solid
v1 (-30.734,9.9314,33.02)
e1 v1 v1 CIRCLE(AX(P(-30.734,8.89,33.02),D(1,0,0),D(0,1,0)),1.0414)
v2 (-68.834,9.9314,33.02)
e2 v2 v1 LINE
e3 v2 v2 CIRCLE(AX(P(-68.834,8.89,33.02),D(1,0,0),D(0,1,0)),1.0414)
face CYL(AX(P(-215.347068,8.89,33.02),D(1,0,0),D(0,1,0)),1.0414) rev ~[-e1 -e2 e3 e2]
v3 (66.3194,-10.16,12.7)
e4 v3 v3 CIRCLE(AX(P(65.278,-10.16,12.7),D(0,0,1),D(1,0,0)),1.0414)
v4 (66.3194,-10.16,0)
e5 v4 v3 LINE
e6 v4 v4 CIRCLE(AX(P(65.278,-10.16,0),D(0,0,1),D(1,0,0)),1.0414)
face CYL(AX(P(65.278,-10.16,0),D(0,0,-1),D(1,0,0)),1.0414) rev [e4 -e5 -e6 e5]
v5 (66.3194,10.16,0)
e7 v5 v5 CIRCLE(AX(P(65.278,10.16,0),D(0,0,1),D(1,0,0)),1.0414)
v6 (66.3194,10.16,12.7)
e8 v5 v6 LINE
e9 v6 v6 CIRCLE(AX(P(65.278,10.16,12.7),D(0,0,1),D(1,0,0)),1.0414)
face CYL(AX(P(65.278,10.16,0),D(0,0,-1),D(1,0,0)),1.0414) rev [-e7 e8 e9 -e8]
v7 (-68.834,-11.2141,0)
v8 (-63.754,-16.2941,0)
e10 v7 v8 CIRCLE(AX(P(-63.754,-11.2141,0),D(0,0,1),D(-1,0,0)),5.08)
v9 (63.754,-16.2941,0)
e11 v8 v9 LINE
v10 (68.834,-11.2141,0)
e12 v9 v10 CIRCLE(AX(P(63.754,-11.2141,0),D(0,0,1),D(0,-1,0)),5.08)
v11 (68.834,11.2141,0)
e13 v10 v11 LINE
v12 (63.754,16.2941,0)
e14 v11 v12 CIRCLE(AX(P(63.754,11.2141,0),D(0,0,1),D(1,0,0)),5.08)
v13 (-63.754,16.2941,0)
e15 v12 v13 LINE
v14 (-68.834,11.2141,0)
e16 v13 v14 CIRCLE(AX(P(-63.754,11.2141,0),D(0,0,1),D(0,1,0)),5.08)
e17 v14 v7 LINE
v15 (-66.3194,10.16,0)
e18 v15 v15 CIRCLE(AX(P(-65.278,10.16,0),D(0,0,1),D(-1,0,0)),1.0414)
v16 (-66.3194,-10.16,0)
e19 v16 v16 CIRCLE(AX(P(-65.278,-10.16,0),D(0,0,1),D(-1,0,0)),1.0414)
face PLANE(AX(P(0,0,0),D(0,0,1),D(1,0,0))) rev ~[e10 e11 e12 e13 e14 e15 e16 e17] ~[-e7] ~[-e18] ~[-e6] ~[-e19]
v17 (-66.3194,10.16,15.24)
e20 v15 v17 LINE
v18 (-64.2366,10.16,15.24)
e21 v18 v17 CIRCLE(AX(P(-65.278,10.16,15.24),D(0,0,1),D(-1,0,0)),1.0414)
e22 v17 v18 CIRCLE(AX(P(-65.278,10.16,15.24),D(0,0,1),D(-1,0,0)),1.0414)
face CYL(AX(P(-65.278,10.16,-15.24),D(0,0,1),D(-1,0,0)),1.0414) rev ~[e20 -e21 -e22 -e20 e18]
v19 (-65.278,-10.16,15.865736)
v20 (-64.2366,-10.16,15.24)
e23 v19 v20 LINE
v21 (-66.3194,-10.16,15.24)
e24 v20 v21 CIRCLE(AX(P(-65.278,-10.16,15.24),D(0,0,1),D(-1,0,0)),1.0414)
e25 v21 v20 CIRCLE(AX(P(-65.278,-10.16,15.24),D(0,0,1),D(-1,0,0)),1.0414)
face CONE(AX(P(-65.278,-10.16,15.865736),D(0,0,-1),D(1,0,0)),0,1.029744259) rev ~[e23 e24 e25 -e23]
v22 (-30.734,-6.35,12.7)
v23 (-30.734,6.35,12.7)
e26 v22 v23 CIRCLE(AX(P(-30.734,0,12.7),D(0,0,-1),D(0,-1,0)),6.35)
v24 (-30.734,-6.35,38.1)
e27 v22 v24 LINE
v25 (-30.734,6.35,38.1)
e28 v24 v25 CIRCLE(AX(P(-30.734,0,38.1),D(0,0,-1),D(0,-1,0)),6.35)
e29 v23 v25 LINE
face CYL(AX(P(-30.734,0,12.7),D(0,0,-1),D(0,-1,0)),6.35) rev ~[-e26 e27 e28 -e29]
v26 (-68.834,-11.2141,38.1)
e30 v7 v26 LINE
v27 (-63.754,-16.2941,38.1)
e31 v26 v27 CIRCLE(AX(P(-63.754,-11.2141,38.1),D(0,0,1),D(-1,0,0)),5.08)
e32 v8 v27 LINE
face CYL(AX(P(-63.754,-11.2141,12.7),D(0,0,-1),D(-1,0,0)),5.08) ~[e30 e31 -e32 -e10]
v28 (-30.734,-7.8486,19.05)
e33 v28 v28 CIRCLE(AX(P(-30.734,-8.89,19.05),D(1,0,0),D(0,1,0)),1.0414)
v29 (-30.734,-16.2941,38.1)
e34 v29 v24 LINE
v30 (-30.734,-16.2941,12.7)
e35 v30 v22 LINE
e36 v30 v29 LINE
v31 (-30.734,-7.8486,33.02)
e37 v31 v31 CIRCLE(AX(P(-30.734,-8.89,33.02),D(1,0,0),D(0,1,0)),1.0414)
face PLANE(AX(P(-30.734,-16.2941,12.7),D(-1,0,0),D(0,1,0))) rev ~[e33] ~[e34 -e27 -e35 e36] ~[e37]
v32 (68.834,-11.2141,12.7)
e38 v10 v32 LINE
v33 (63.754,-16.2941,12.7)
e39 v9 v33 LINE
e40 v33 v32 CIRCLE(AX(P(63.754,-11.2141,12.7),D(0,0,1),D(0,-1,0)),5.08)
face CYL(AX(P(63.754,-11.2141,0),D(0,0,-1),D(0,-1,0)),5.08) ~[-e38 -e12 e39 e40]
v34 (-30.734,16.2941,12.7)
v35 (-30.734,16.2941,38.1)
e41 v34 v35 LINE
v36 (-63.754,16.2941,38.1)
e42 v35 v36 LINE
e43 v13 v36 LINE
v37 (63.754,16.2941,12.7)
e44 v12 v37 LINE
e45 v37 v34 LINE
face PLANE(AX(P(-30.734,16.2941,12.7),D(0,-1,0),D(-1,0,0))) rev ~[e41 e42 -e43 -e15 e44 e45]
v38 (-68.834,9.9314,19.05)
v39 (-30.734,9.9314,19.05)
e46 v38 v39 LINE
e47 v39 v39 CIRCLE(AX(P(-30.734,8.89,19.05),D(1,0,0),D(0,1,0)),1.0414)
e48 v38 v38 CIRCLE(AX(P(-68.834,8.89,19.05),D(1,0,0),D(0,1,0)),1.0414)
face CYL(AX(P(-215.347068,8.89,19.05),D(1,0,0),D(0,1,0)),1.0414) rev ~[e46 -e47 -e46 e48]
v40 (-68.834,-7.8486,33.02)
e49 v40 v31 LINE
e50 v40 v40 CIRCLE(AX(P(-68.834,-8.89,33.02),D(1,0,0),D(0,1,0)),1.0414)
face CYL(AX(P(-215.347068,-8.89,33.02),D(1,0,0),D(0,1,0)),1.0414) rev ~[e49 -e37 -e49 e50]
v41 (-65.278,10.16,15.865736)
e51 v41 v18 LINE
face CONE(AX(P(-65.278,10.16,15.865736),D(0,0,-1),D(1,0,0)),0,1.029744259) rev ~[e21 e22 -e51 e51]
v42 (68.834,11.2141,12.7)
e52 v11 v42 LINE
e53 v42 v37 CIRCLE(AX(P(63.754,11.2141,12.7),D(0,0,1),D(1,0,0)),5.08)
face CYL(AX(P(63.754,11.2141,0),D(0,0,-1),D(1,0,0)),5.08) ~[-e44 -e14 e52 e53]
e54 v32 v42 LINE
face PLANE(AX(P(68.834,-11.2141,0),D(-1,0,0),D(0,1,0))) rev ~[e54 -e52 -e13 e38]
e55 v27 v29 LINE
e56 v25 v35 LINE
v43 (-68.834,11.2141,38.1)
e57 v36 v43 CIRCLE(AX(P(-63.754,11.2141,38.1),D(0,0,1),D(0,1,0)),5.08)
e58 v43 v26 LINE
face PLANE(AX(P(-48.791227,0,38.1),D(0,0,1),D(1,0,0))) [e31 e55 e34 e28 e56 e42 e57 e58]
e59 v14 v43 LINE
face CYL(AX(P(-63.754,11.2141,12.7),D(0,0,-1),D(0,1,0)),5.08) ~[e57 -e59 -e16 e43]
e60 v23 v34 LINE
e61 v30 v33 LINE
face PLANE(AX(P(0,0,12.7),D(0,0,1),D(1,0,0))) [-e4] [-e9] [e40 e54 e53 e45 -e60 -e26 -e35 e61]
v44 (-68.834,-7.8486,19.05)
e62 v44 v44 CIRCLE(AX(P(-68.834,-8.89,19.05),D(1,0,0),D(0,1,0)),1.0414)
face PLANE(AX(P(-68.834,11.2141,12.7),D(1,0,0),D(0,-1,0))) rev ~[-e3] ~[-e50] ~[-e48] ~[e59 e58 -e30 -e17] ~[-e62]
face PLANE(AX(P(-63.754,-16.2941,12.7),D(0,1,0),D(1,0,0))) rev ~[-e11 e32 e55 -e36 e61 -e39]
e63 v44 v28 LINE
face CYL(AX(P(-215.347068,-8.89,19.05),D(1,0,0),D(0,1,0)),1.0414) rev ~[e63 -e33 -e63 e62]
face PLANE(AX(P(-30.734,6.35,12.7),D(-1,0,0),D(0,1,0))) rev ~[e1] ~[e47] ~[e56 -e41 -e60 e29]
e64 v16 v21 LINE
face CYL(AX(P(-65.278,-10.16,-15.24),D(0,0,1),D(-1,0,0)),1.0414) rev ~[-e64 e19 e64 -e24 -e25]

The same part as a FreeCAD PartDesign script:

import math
import FreeCAD as App
import Part
import Sketcher
Q = App.Units.Quantity

doc = App.newDocument("Part")
body = doc.addObject("PartDesign::Body", "Body")

# Sketch on XY plane
sketch1 = body.newObject("Sketcher::SketchObject", "Sketch")
sketch1.AttachmentSupport = (doc.getObject("XY_Plane"), [""])
sketch1.MapMode = "FlatFace"
sketch1.addGeometry(Part.ArcOfCircle(Part.Circle(App.Vector(-63.8, -11.2, 0), App.Vector(0, 0, 1), 5.1), math.radians(180), math.radians(270)), False)
sketch1.addGeometry(Part.LineSegment(App.Vector(-63.8, -16.3, 0), App.Vector(63.8, -16.3, 0)), False)
sketch1.addGeometry(Part.ArcOfCircle(Part.Circle(App.Vector(63.8, -11.2, 0), App.Vector(0, 0, 1), 5.1), math.radians(-90), math.radians(0)), False)
sketch1.addGeometry(Part.LineSegment(App.Vector(68.8, -11.2, 0), App.Vector(68.8, 11.2, 0)), False)
sketch1.addGeometry(Part.ArcOfCircle(Part.Circle(App.Vector(63.8, 11.2, 0), App.Vector(0, 0, 1), 5.1), math.radians(0), math.radians(90)), False)
sketch1.addGeometry(Part.LineSegment(App.Vector(63.8, 16.3, 0), App.Vector(-63.8, 16.3, 0)), False)
sketch1.addGeometry(Part.ArcOfCircle(Part.Circle(App.Vector(-63.8, 11.2, 0), App.Vector(0, 0, 1), 5.1), math.radians(90), math.radians(180)), False)
sketch1.addGeometry(Part.LineSegment(App.Vector(-68.8, 11.2, 0), App.Vector(-68.8, -11.2, 0)), False)
sketch1.addGeometry(Part.Circle(App.Vector(65.3, -10.2, 0), App.Vector(0, 0, 1), 1), False)
sketch1.addGeometry(Part.Circle(App.Vector(65.3, 10.2, 0), App.Vector(0, 0, 1), 1), False)
sketch1.addConstraint(Sketcher.Constraint("Tangent", 0, 2, 1, 1))
sketch1.addConstraint(Sketcher.Constraint("Tangent", 1, 2, 2, 1))
sketch1.addConstraint(Sketcher.Constraint("Tangent", 2, 2, 3, 1))
sketch1.addConstraint(Sketcher.Constraint("Tangent", 3, 2, 4, 1))
sketch1.addConstraint(Sketcher.Constraint("Tangent", 4, 2, 5, 1))
sketch1.addConstraint(Sketcher.Constraint("Tangent", 5, 2, 6, 1))
sketch1.addConstraint(Sketcher.Constraint("Tangent", 6, 2, 7, 1))
sketch1.addConstraint(Sketcher.Constraint("Tangent", 7, 2, 0, 1))
sketch1.addConstraint(Sketcher.Constraint("Horizontal", 1))
sketch1.addConstraint(Sketcher.Constraint("Vertical", 3))
sketch1.addConstraint(Sketcher.Constraint("Horizontal", 5))
sketch1.addConstraint(Sketcher.Constraint("Vertical", 7))
sketch1.addConstraint(Sketcher.Constraint("Equal", 0, 2))
sketch1.addConstraint(Sketcher.Constraint("Equal", 2, 4))
sketch1.addConstraint(Sketcher.Constraint("Equal", 4, 6))
sketch1.addConstraint(Sketcher.Constraint("Equal", 8, 9))
sketch1.addConstraint(Sketcher.Constraint("Symmetric", 0, 3, 4, 3, -1, 1))
sketch1.addConstraint(Sketcher.Constraint("Symmetric", 8, 3, 9, 3, -1))
sketch1.addConstraint(Sketcher.Constraint("Radius", 0, Q("0.2 in")))
sketch1.addConstraint(Sketcher.Constraint("Diameter", 8, Q("0.082 in")))
sketch1.addConstraint(Sketcher.Constraint("DistanceX", 1, 1, 1, 2, Q("5.02 in")))
sketch1.addConstraint(Sketcher.Constraint("DistanceY", 8, 3, -1, 1, Q("0.4 in")))
sketch1.addConstraint(Sketcher.Constraint("DistanceY", 3, 1, 3, 2, Q("0.883 in")))
sketch1.addConstraint(Sketcher.Constraint("DistanceX", -1, 1, 8, 3, Q("2.57 in")))
pad1 = body.newObject("PartDesign::Pad", "Pad")
pad1.Profile = sketch1
pad1.Length = Q("0.5 in")

# Sketch on XY plane
sketch2 = body.newObject("Sketcher::SketchObject", "Sketch001")
sketch2.AttachmentSupport = (doc.getObject("XY_Plane"), [""])
sketch2.MapMode = "FlatFace"
sketch2.AttachmentOffset = App.Placement(App.Vector(0, 0, 0.5 * 25.4), App.Rotation())
sketch2.addGeometry(Part.LineSegment(App.Vector(-31, 16, 0), App.Vector(-64, 16, 0)), False)
sketch2.addGeometry(Part.ArcOfCircle(Part.Circle(App.Vector(-64, 11, 0), App.Vector(0, 0, 1), 5), math.radians(90), math.radians(180)), False)
sketch2.addGeometry(Part.LineSegment(App.Vector(-69, 11, 0), App.Vector(-69, -11, 0)), False)
sketch2.addGeometry(Part.ArcOfCircle(Part.Circle(App.Vector(-64, -11, 0), App.Vector(0, 0, 1), 5), math.radians(180), math.radians(270)), False)
sketch2.addGeometry(Part.LineSegment(App.Vector(-64, -16, 0), App.Vector(-31, -16, 0)), False)
sketch2.addGeometry(Part.LineSegment(App.Vector(-31, -16, 0), App.Vector(-31, -6, 0)), False)
sketch2.addGeometry(Part.ArcOfCircle(Part.Circle(App.Vector(-31, 0, 0), App.Vector(0, 0, 1), 6), math.radians(90), math.radians(270)), False)
sketch2.addGeometry(Part.LineSegment(App.Vector(-31, 6, 0), App.Vector(-31, 16, 0)), False)
sketch2.addConstraint(Sketcher.Constraint("Tangent", 0, 2, 1, 1))
sketch2.addConstraint(Sketcher.Constraint("Tangent", 1, 2, 2, 1))
sketch2.addConstraint(Sketcher.Constraint("Tangent", 2, 2, 3, 1))
sketch2.addConstraint(Sketcher.Constraint("Tangent", 3, 2, 4, 1))
sketch2.addConstraint(Sketcher.Constraint("Coincident", 4, 2, 5, 1))
sketch2.addConstraint(Sketcher.Constraint("Coincident", 5, 2, 6, 2))
sketch2.addConstraint(Sketcher.Constraint("Coincident", 6, 1, 7, 1))
sketch2.addConstraint(Sketcher.Constraint("Coincident", 7, 2, 0, 1))
sketch2.addConstraint(Sketcher.Constraint("Horizontal", 0))
sketch2.addConstraint(Sketcher.Constraint("Vertical", 2))
sketch2.addConstraint(Sketcher.Constraint("Horizontal", 4))
sketch2.addConstraint(Sketcher.Constraint("Vertical", 5))
sketch2.addConstraint(Sketcher.Constraint("Vertical", 7))
sketch2.addConstraint(Sketcher.Constraint("Equal", 1, 3))
sketch2.addConstraint(Sketcher.Constraint("Symmetric", 5, 2, 6, 1, -1))
sketch2.addConstraint(Sketcher.Constraint("Vertical", 6, 3, 4, 2))
sketch2.addConstraint(Sketcher.Constraint("Equal", 5, 7))
sketch2.addConstraint(Sketcher.Constraint("Radius", 1, Q("0.2 in")))
sketch2.addConstraint(Sketcher.Constraint("Radius", 6, Q("0.25 in")))
sketch2.addConstraint(Sketcher.Constraint("DistanceX", 0, 2, 0, 1, Q("1.3 in")))
sketch2.addConstraint(Sketcher.Constraint("DistanceY", 2, 2, 2, 1, Q("0.883 in")))
sketch2.addConstraint(Sketcher.Constraint("DistanceX", 1, 3, -1, 1, Q("2.51 in")))
pad2 = body.newObject("PartDesign::Pad", "Pad001")
pad2.Profile = sketch2
pad2.Length = Q("1 in")

# Sketch on YZ plane
sketch3 = body.newObject("Sketcher::SketchObject", "Sketch002")
sketch3.AttachmentSupport = (doc.getObject("YZ_Plane"), [""])
sketch3.MapMode = "FlatFace"
sketch3.AttachmentOffset = App.Placement(App.Vector(0, 0, -2.71 * 25.4), App.Rotation())
sketch3.addGeometry(Part.Circle(App.Vector(8.9, 33, 0), App.Vector(0, 0, 1), 1), False)
sketch3.addGeometry(Part.Circle(App.Vector(8.9, 19.1, 0), App.Vector(0, 0, 1), 1), False)
sketch3.addGeometry(Part.Circle(App.Vector(-8.9, 33, 0), App.Vector(0, 0, 1), 1), False)
sketch3.addGeometry(Part.Circle(App.Vector(-8.9, 19.1, 0), App.Vector(0, 0, 1), 1), False)
sketch3.addConstraint(Sketcher.Constraint("Equal", 0, 1))
sketch3.addConstraint(Sketcher.Constraint("Equal", 1, 2))
sketch3.addConstraint(Sketcher.Constraint("Equal", 2, 3))
sketch3.addConstraint(Sketcher.Constraint("Symmetric", 0, 3, 2, 3, -2))
sketch3.addConstraint(Sketcher.Constraint("Symmetric", 1, 3, 3, 3, -2))
sketch3.addConstraint(Sketcher.Constraint("Vertical", 0, 3, 1, 3))
sketch3.addConstraint(Sketcher.Constraint("Diameter", 0, Q("0.082 in")))
sketch3.addConstraint(Sketcher.Constraint("DistanceY", -1, 1, 0, 3, Q("1.3 in")))
sketch3.addConstraint(Sketcher.Constraint("DistanceX", 2, 3, 0, 3, Q("0.7 in")))
sketch3.addConstraint(Sketcher.Constraint("DistanceY", -1, 1, 1, 3, Q("0.75 in")))
doc.recompute()
hole = body.newObject("PartDesign::Hole", "Hole")
hole.Profile = sketch3
hole.ThreadType = "None"
hole.Diameter = Q("0.082 in")
hole.DepthType = "ThroughAll"
hole.Reversed = True

# Sketch on XY plane
sketch4 = body.newObject("Sketcher::SketchObject", "Sketch003")
sketch4.AttachmentSupport = (doc.getObject("XY_Plane"), [""])
sketch4.MapMode = "FlatFace"
sketch4.addGeometry(Part.Circle(App.Vector(-65.3, -10.2, 0), App.Vector(0, 0, 1), 1), False)
sketch4.addGeometry(Part.Circle(App.Vector(-65.3, 10.2, 0), App.Vector(0, 0, 1), 1), False)
sketch4.addConstraint(Sketcher.Constraint("Equal", 0, 1))
sketch4.addConstraint(Sketcher.Constraint("Symmetric", 0, 3, 1, 3, -1))
sketch4.addConstraint(Sketcher.Constraint("Diameter", 0, Q("0.082 in")))
sketch4.addConstraint(Sketcher.Constraint("DistanceY", 0, 3, -1, 1, Q("0.4 in")))
sketch4.addConstraint(Sketcher.Constraint("DistanceX", 0, 3, -1, 1, Q("2.57 in")))
doc.recompute()
hole2 = body.newObject("PartDesign::Hole", "Hole001")
hole2.Profile = sketch4
hole2.ThreadType = "None"
hole2.Diameter = Q("0.082 in")
hole2.DepthType = "Dimension"
hole2.Depth = Q("0.6 in")
hole2.DrillPoint = "Angled"
hole2.DrillPointAngle = 118
hole2.Reversed = True

doc.recompute()
